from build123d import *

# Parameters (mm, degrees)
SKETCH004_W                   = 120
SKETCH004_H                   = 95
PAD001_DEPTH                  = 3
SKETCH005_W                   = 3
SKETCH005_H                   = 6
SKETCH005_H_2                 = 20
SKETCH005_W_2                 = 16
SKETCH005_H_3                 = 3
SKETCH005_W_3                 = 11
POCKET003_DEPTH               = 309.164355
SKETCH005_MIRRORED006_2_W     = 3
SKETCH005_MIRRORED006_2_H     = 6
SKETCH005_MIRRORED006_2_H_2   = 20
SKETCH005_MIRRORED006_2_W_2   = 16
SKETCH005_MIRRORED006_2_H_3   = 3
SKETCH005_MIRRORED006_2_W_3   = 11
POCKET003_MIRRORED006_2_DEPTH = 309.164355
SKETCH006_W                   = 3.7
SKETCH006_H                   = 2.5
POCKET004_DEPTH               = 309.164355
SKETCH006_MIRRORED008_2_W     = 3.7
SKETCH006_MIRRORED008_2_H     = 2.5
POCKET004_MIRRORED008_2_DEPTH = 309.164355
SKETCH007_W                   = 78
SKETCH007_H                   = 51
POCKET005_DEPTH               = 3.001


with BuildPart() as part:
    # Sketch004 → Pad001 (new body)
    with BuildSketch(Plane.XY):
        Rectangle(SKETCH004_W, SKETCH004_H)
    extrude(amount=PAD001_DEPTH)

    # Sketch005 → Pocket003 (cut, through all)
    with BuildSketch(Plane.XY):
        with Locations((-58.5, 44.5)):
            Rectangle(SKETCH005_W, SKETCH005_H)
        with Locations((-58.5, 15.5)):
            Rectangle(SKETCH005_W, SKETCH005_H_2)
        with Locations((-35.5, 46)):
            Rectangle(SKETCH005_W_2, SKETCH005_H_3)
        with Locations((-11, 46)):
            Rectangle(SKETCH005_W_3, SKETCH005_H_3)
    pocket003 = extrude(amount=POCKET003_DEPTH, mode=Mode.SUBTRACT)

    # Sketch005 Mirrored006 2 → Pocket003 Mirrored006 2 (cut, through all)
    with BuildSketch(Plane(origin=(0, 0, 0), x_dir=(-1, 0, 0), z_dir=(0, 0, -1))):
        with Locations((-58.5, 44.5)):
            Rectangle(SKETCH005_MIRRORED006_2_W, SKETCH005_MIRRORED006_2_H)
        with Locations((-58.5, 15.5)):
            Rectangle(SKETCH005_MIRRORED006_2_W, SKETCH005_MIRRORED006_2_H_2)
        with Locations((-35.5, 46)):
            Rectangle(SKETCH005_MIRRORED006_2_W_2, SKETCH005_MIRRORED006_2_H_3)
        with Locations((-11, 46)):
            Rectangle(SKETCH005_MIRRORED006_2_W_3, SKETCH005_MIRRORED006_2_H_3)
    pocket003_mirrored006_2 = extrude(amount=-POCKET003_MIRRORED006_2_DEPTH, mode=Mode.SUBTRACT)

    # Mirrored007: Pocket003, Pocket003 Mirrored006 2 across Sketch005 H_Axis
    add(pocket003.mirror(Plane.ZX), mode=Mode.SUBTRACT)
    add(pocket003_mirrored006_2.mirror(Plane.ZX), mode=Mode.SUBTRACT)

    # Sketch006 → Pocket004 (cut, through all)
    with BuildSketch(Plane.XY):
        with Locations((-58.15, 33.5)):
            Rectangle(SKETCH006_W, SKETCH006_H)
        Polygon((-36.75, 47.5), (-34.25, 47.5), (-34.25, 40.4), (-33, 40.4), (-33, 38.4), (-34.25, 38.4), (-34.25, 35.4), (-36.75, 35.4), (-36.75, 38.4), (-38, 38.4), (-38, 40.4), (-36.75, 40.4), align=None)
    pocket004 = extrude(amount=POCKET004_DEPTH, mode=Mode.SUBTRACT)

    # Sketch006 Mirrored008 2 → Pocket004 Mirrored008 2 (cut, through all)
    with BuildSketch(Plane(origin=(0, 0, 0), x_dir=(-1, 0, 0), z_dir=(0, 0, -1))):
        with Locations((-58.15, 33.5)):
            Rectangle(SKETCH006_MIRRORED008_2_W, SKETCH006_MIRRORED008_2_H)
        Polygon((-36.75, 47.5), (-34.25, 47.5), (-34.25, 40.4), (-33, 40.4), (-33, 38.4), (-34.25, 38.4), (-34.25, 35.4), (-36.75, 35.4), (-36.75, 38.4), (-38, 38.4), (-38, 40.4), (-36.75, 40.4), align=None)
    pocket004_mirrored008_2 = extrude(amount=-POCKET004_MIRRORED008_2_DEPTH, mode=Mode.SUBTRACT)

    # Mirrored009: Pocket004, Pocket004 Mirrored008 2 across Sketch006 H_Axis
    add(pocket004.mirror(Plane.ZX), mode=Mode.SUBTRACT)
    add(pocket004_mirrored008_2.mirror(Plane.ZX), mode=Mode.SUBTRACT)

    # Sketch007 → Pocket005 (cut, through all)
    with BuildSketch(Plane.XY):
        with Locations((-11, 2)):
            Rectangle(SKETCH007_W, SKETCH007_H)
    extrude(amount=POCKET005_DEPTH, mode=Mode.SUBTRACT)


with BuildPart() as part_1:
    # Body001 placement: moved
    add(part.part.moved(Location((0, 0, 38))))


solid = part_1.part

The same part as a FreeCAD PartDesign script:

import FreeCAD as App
import Part
import Sketcher
Q = App.Units.Quantity

doc = App.newDocument("Part")
params = doc.addObject("Spreadsheet::Sheet", "Params")
for row, (alias, value) in enumerate([
    ("sketch1_width", "120 mm"),
    ("sketch1_height", "95 mm"),
    ("pad1_length", "3 mm"),
    ("sketch2_width", "3 mm"),
    ("sketch2_width2", "16 mm"),
    ("sketch2_width3", "11 mm"),
    ("sketch2_height", "6 mm"),
    ("sketch2_height2", "20 mm"),
    ("sketch3_width", "3 mm"),
    ("sketch3_width2", "16 mm"),
    ("sketch3_width3", "11 mm"),
    ("sketch3_height", "6 mm"),
    ("sketch3_height2", "20 mm"),
    ("sketch4_height", "2 mm"),
    ("sketch4_height2", "3 mm"),
    ("sketch4_width", "3.7 mm"),
    ("sketch4_width2", "2.5 mm"),
    ("sketch4_height3", "7.1 mm"),
    ("sketch5_height", "2 mm"),
    ("sketch5_height2", "3 mm"),
    ("sketch5_width", "3.7 mm"),
    ("sketch5_width2", "2.5 mm"),
    ("sketch5_height3", "7.1 mm"),
    ("sketch6_width", "78 mm"),
    ("sketch6_height", "51 mm"),
], start=1):
    params.set(f"A{row}", alias)
    params.set(f"B{row}", "=" + value)
    params.setAlias(f"B{row}", alias)

body = doc.addObject("PartDesign::Body", "Body")

# Sketch on XY plane
sketch1 = body.newObject("Sketcher::SketchObject", "Sketch")
sketch1.AttachmentSupport = (doc.getObject("XY_Plane"), [""])
sketch1.MapMode = "FlatFace"
sketch1.addGeometry(Part.LineSegment(App.Vector(-60, 47.5, 0), App.Vector(-60, -47.5, 0)), False)
sketch1.addGeometry(Part.LineSegment(App.Vector(-60, -47.5, 0), App.Vector(60, -47.5, 0)), False)
sketch1.addGeometry(Part.LineSegment(App.Vector(60, -47.5, 0), App.Vector(60, 47.5, 0)), False)
sketch1.addGeometry(Part.LineSegment(App.Vector(60, 47.5, 0), App.Vector(-60, 47.5, 0)), False)
sketch1.addConstraint(Sketcher.Constraint("Coincident", 0, 2, 1, 1))
sketch1.addConstraint(Sketcher.Constraint("Coincident", 1, 2, 2, 1))
sketch1.addConstraint(Sketcher.Constraint("Coincident", 2, 2, 3, 1))
sketch1.addConstraint(Sketcher.Constraint("Coincident", 3, 2, 0, 1))
sketch1.addConstraint(Sketcher.Constraint("Vertical", 0))
sketch1.addConstraint(Sketcher.Constraint("Horizontal", 1))
sketch1.addConstraint(Sketcher.Constraint("Vertical", 2))
sketch1.addConstraint(Sketcher.Constraint("Horizontal", 3))
sketch1.addConstraint(Sketcher.Constraint("Symmetric", 0, 2, 2, 2, -1, 1))
sketch1.addConstraint(Sketcher.Constraint("DistanceX", 1, 1, 1, 2, Q("120 mm")))
sketch1.addConstraint(Sketcher.Constraint("DistanceY", 0, 2, 0, 1, Q("95 mm")))
sketch1.setExpression("Constraints[9]", "Params.sketch1_width")
sketch1.setExpression("Constraints[10]", "Params.sketch1_height")
pad1 = body.newObject("PartDesign::Pad", "Pad")
pad1.Profile = sketch1
pad1.setExpression("Length", "Params.pad1_length")

# Sketch on XY plane
sketch2 = body.newObject("Sketcher::SketchObject", "Sketch001")
sketch2.AttachmentSupport = (doc.getObject("XY_Plane"), [""])
sketch2.MapMode = "FlatFace"
sketch2.addGeometry(Part.LineSegment(App.Vector(-60, 47.5, 0), App.Vector(-60, 41.5, 0)), False)
sketch2.addGeometry(Part.LineSegment(App.Vector(-60, 41.5, 0), App.Vector(-57, 41.5, 0)), False)
sketch2.addGeometry(Part.LineSegment(App.Vector(-57, 41.5, 0), App.Vector(-57, 47.5, 0)), False)
sketch2.addGeometry(Part.LineSegment(App.Vector(-57, 47.5, 0), App.Vector(-60, 47.5, 0)), False)
sketch2.addGeometry(Part.LineSegment(App.Vector(-60, 25.5, 0), App.Vector(-60, 5.5, 0)), False)
sketch2.addGeometry(Part.LineSegment(App.Vector(-60, 5.5, 0), App.Vector(-57, 5.5, 0)), False)
sketch2.addGeometry(Part.LineSegment(App.Vector(-57, 5.5, 0), App.Vector(-57, 25.5, 0)), False)
sketch2.addGeometry(Part.LineSegment(App.Vector(-57, 25.5, 0), App.Vector(-60, 25.5, 0)), False)
sketch2.addGeometry(Part.LineSegment(App.Vector(-43.5, 47.5, 0), App.Vector(-43.5, 44.5, 0)), False)
sketch2.addGeometry(Part.LineSegment(App.Vector(-43.5, 44.5, 0), App.Vector(-27.5, 44.5, 0)), False)
sketch2.addGeometry(Part.LineSegment(App.Vector(-27.5, 44.5, 0), App.Vector(-27.5, 47.5, 0)), False)
sketch2.addGeometry(Part.LineSegment(App.Vector(-27.5, 47.5, 0), App.Vector(-43.5, 47.5, 0)), False)
sketch2.addGeometry(Part.LineSegment(App.Vector(-16.5, 47.5, 0), App.Vector(-16.5, 44.5, 0)), False)
sketch2.addGeometry(Part.LineSegment(App.Vector(-16.5, 44.5, 0), App.Vector(-5.5, 44.5, 0)), False)
sketch2.addGeometry(Part.LineSegment(App.Vector(-5.5, 44.5, 0), App.Vector(-5.5, 47.5, 0)), False)
sketch2.addGeometry(Part.LineSegment(App.Vector(-5.5, 47.5, 0), App.Vector(-16.5, 47.5, 0)), False)
sketch2.addConstraint(Sketcher.Constraint("Coincident", 0, 2, 1, 1))
sketch2.addConstraint(Sketcher.Constraint("Coincident", 1, 2, 2, 1))
sketch2.addConstraint(Sketcher.Constraint("Coincident", 2, 2, 3, 1))
sketch2.addConstraint(Sketcher.Constraint("Coincident", 3, 2, 0, 1))
sketch2.addConstraint(Sketcher.Constraint("Coincident", 4, 2, 5, 1))
sketch2.addConstraint(Sketcher.Constraint("Coincident", 5, 2, 6, 1))
sketch2.addConstraint(Sketcher.Constraint("Coincident", 6, 2, 7, 1))
sketch2.addConstraint(Sketcher.Constraint("Coincident", 7, 2, 4, 1))
sketch2.addConstraint(Sketcher.Constraint("Coincident", 8, 2, 9, 1))
sketch2.addConstraint(Sketcher.Constraint("Coincident", 9, 2, 10, 1))
sketch2.addConstraint(Sketcher.Constraint("Coincident", 10, 2, 11, 1))
sketch2.addConstraint(Sketcher.Constraint("Coincident", 11, 2, 8, 1))
sketch2.addConstraint(Sketcher.Constraint("Coincident", 12, 2, 13, 1))
sketch2.addConstraint(Sketcher.Constraint("Coincident", 13, 2, 14, 1))
sketch2.addConstraint(Sketcher.Constraint("Coincident", 14, 2, 15, 1))
sketch2.addConstraint(Sketcher.Constraint("Coincident", 15, 2, 12, 1))
sketch2.addConstraint(Sketcher.Constraint("Vertical", 0))
sketch2.addConstraint(Sketcher.Constraint("Horizontal", 1))
sketch2.addConstraint(Sketcher.Constraint("Vertical", 2))
sketch2.addConstraint(Sketcher.Constraint("Horizontal", 3))
sketch2.addConstraint(Sketcher.Constraint("Vertical", 4))
sketch2.addConstraint(Sketcher.Constraint("Horizontal", 5))
sketch2.addConstraint(Sketcher.Constraint("Vertical", 6))
sketch2.addConstraint(Sketcher.Constraint("Horizontal", 7))
sketch2.addConstraint(Sketcher.Constraint("Vertical", 8))
sketch2.addConstraint(Sketcher.Constraint("Horizontal", 9))
sketch2.addConstraint(Sketcher.Constraint("Vertical", 10))
sketch2.addConstraint(Sketcher.Constraint("Horizontal", 11))
sketch2.addConstraint(Sketcher.Constraint("Vertical", 12))
sketch2.addConstraint(Sketcher.Constraint("Horizontal", 13))
sketch2.addConstraint(Sketcher.Constraint("Vertical", 14))
sketch2.addConstraint(Sketcher.Constraint("Horizontal", 15))
sketch2.addConstraint(Sketcher.Constraint("Horizontal", 3, 2, 10, 2))
sketch2.addConstraint(Sketcher.Constraint("Horizontal", 9, 2, 12, 2))
sketch2.addConstraint(Sketcher.Constraint("Horizontal", 11, 2, 14, 2))
sketch2.addConstraint(Sketcher.Constraint("Vertical", 3, 2, 4, 2))
sketch2.addConstraint(Sketcher.Constraint("Vertical", 2, 2, 5, 2))
sketch2.addConstraint(Sketcher.Constraint("Equal", 7, 8))
sketch2.addConstraint(Sketcher.Constraint("DistanceX", 1, 1, 1, 2, Q("3 mm")))
sketch2.addConstraint(Sketcher.Constraint("DistanceX", 9, 1, 9, 2, Q("16 mm")))
sketch2.addConstraint(Sketcher.Constraint("DistanceX", 13, 1, 13, 2, Q("11 mm")))
sketch2.addConstraint(Sketcher.Constraint("DistanceY", 0, 2, 0, 1, Q("6 mm")))
sketch2.addConstraint(Sketcher.Constraint("DistanceY", 4, 2, 4, 1, Q("20 mm")))
sketch2.addConstraint(Sketcher.Constraint("DistanceX", 0, 2, -1, 1, Q("60 mm")))
sketch2.addConstraint(Sketcher.Constraint("DistanceY", 4, 2, 0, 2, Q("36 mm")))
sketch2.addConstraint(Sketcher.Constraint("DistanceX", 9, 2, 12, 2, Q("11 mm")))
sketch2.addConstraint(Sketcher.Constraint("DistanceY", -1, 1, 0, 2, Q("41.5 mm")))
sketch2.addConstraint(Sketcher.Constraint("DistanceX", 8, 2, -1, 1, Q("43.5 mm")))
sketch2.setExpression("Constraints[38]", "Params.sketch2_width")
sketch2.setExpression("Constraints[39]", "Params.sketch2_width2")
sketch2.setExpression("Constraints[40]", "Params.sketch2_width3")
sketch2.setExpression("Constraints[41]", "Params.sketch2_height")
sketch2.setExpression("Constraints[42]", "Params.sketch2_height2")
pocket1 = body.newObject("PartDesign::Pocket", "Pocket")
pocket1.Profile = sketch2
pocket1.Type = "ThroughAll"
pocket1.Reversed = True

# Sketch on XY plane
sketch3 = body.newObject("Sketcher::SketchObject", "Sketch002")
sketch3.AttachmentSupport = (doc.getObject("XY_Plane"), [""])
sketch3.MapMode = "FlatFace"
sketch3.addGeometry(Part.LineSegment(App.Vector(60, 47.5, 0), App.Vector(60, 41.5, 0)), False)
sketch3.addGeometry(Part.LineSegment(App.Vector(60, 41.5, 0), App.Vector(57, 41.5, 0)), False)
sketch3.addGeometry(Part.LineSegment(App.Vector(57, 41.5, 0), App.Vector(57, 47.5, 0)), False)
sketch3.addGeometry(Part.LineSegment(App.Vector(57, 47.5, 0), App.Vector(60, 47.5, 0)), False)
sketch3.addGeometry(Part.LineSegment(App.Vector(60, 25.5, 0), App.Vector(60, 5.5, 0)), False)
sketch3.addGeometry(Part.LineSegment(App.Vector(60, 5.5, 0), App.Vector(57, 5.5, 0)), False)
sketch3.addGeometry(Part.LineSegment(App.Vector(57, 5.5, 0), App.Vector(57, 25.5, 0)), False)
sketch3.addGeometry(Part.LineSegment(App.Vector(57, 25.5, 0), App.Vector(60, 25.5, 0)), False)
sketch3.addGeometry(Part.LineSegment(App.Vector(43.5, 47.5, 0), App.Vector(43.5, 44.5, 0)), False)
sketch3.addGeometry(Part.LineSegment(App.Vector(43.5, 44.5, 0), App.Vector(27.5, 44.5, 0)), False)
sketch3.addGeometry(Part.LineSegment(App.Vector(27.5, 44.5, 0), App.Vector(27.5, 47.5, 0)), False)
sketch3.addGeometry(Part.LineSegment(App.Vector(27.5, 47.5, 0), App.Vector(43.5, 47.5, 0)), False)
sketch3.addGeometry(Part.LineSegment(App.Vector(16.5, 47.5, 0), App.Vector(16.5, 44.5, 0)), False)
sketch3.addGeometry(Part.LineSegment(App.Vector(16.5, 44.5, 0), App.Vector(5.5, 44.5, 0)), False)
sketch3.addGeometry(Part.LineSegment(App.Vector(5.5, 44.5, 0), App.Vector(5.5, 47.5, 0)), False)
sketch3.addGeometry(Part.LineSegment(App.Vector(5.5, 47.5, 0), App.Vector(16.5, 47.5, 0)), False)
sketch3.addConstraint(Sketcher.Constraint("Coincident", 0, 2, 1, 1))
sketch3.addConstraint(Sketcher.Constraint("Coincident", 1, 2, 2, 1))
sketch3.addConstraint(Sketcher.Constraint("Coincident", 2, 2, 3, 1))
sketch3.addConstraint(Sketcher.Constraint("Coincident", 3, 2, 0, 1))
sketch3.addConstraint(Sketcher.Constraint("Coincident", 4, 2, 5, 1))
sketch3.addConstraint(Sketcher.Constraint("Coincident", 5, 2, 6, 1))
sketch3.addConstraint(Sketcher.Constraint("Coincident", 6, 2, 7, 1))
sketch3.addConstraint(Sketcher.Constraint("Coincident", 7, 2, 4, 1))
sketch3.addConstraint(Sketcher.Constraint("Coincident", 8, 2, 9, 1))
sketch3.addConstraint(Sketcher.Constraint("Coincident", 9, 2, 10, 1))
sketch3.addConstraint(Sketcher.Constraint("Coincident", 10, 2, 11, 1))
sketch3.addConstraint(Sketcher.Constraint("Coincident", 11, 2, 8, 1))
sketch3.addConstraint(Sketcher.Constraint("Coincident", 12, 2, 13, 1))
sketch3.addConstraint(Sketcher.Constraint("Coincident", 13, 2, 14, 1))
sketch3.addConstraint(Sketcher.Constraint("Coincident", 14, 2, 15, 1))
sketch3.addConstraint(Sketcher.Constraint("Coincident", 15, 2, 12, 1))
sketch3.addConstraint(Sketcher.Constraint("Vertical", 0))
sketch3.addConstraint(Sketcher.Constraint("Horizontal", 1))
sketch3.addConstraint(Sketcher.Constraint("Vertical", 2))
sketch3.addConstraint(Sketcher.Constraint("Horizontal", 3))
sketch3.addConstraint(Sketcher.Constraint("Vertical", 4))
sketch3.addConstraint(Sketcher.Constraint("Horizontal", 5))
sketch3.addConstraint(Sketcher.Constraint("Vertical", 6))
sketch3.addConstraint(Sketcher.Constraint("Horizontal", 7))
sketch3.addConstraint(Sketcher.Constraint("Vertical", 8))
sketch3.addConstraint(Sketcher.Constraint("Horizontal", 9))
sketch3.addConstraint(Sketcher.Constraint("Vertical", 10))
sketch3.addConstraint(Sketcher.Constraint("Horizontal", 11))
sketch3.addConstraint(Sketcher.Constraint("Vertical", 12))
sketch3.addConstraint(Sketcher.Constraint("Horizontal", 13))
sketch3.addConstraint(Sketcher.Constraint("Vertical", 14))
sketch3.addConstraint(Sketcher.Constraint("Horizontal", 15))
sketch3.addConstraint(Sketcher.Constraint("Horizontal", 3, 2, 10, 2))
sketch3.addConstraint(Sketcher.Constraint("Horizontal", 9, 2, 12, 2))
sketch3.addConstraint(Sketcher.Constraint("Horizontal", 11, 2, 14, 2))
sketch3.addConstraint(Sketcher.Constraint("Vertical", 3, 2, 4, 2))
sketch3.addConstraint(Sketcher.Constraint("Vertical", 2, 2, 5, 2))
sketch3.addConstraint(Sketcher.Constraint("Equal", 7, 8))
sketch3.addConstraint(Sketcher.Constraint("DistanceX", 1, 2, 1, 1, Q("3 mm")))
sketch3.addConstraint(Sketcher.Constraint("DistanceX", 9, 2, 9, 1, Q("16 mm")))
sketch3.addConstraint(Sketcher.Constraint("DistanceX", 13, 2, 13, 1, Q("11 mm")))
sketch3.addConstraint(Sketcher.Constraint("DistanceY", 0, 2, 0, 1, Q("6 mm")))
sketch3.addConstraint(Sketcher.Constraint("DistanceY", 4, 2, 4, 1, Q("20 mm")))
sketch3.addConstraint(Sketcher.Constraint("DistanceX", -1, 1, 0, 2, Q("60 mm")))
sketch3.addConstraint(Sketcher.Constraint("DistanceY", 4, 2, 0, 2, Q("36 mm")))
sketch3.addConstraint(Sketcher.Constraint("DistanceX", 12, 2, 9, 2, Q("11 mm")))
sketch3.addConstraint(Sketcher.Constraint("DistanceY", -1, 1, 0, 2, Q("41.5 mm")))
sketch3.addConstraint(Sketcher.Constraint("DistanceX", -1, 1, 8, 2, Q("43.5 mm")))
sketch3.setExpression("Constraints[38]", "Params.sketch3_width")
sketch3.setExpression("Constraints[39]", "Params.sketch3_width2")
sketch3.setExpression("Constraints[40]", "Params.sketch3_width3")
sketch3.setExpression("Constraints[41]", "Params.sketch3_height")
sketch3.setExpression("Constraints[42]", "Params.sketch3_height2")
pocket2 = body.newObject("PartDesign::Pocket", "Pocket001")
pocket2.Profile = sketch3
pocket2.Type = "ThroughAll"
pocket2.Reversed = True
doc.recompute()

mirrored = body.newObject("PartDesign::Mirrored", "Mirrored")
mirrored.Originals = [pocket1, pocket2]
mirrored.MirrorPlane = (doc.getObject("XZ_Plane"), [""])
body.Tip = mirrored

# Sketch on XY plane
sketch4 = body.newObject("Sketcher::SketchObject", "Sketch003")
sketch4.AttachmentSupport = (doc.getObject("XY_Plane"), [""])
sketch4.MapMode = "FlatFace"
sketch4.addGeometry(Part.LineSegment(App.Vector(-60, 34.75, 0), App.Vector(-60, 32.25, 0)), False)
sketch4.addGeometry(Part.LineSegment(App.Vector(-60, 32.25, 0), App.Vector(-56.3, 32.25, 0)), False)
sketch4.addGeometry(Part.LineSegment(App.Vector(-56.3, 32.25, 0), App.Vector(-56.3, 34.75, 0)), False)
sketch4.addGeometry(Part.LineSegment(App.Vector(-56.3, 34.75, 0), App.Vector(-60, 34.75, 0)), False)
sketch4.addGeometry(Part.LineSegment(App.Vector(-34.25, 47.5, 0), App.Vector(-36.75, 47.5, 0)), False)
sketch4.addGeometry(Part.LineSegment(App.Vector(-36.75, 47.5, 0), App.Vector(-36.75, 40.4, 0)), False)
sketch4.addGeometry(Part.LineSegment(App.Vector(-36.75, 40.4, 0), App.Vector(-38, 40.4, 0)), False)
sketch4.addGeometry(Part.LineSegment(App.Vector(-38, 40.4, 0), App.Vector(-38, 38.4, 0)), False)
sketch4.addGeometry(Part.LineSegment(App.Vector(-38, 38.4, 0), App.Vector(-36.75, 38.4, 0)), False)
sketch4.addGeometry(Part.LineSegment(App.Vector(-36.75, 38.4, 0), App.Vector(-36.75, 35.4, 0)), False)
sketch4.addGeometry(Part.LineSegment(App.Vector(-36.75, 35.4, 0), App.Vector(-34.25, 35.4, 0)), False)
sketch4.addGeometry(Part.LineSegment(App.Vector(-34.25, 35.4, 0), App.Vector(-34.25, 38.4, 0)), False)
sketch4.addGeometry(Part.LineSegment(App.Vector(-34.25, 38.4, 0), App.Vector(-33, 38.4, 0)), False)
sketch4.addGeometry(Part.LineSegment(App.Vector(-33, 38.4, 0), App.Vector(-33, 40.4, 0)), False)
sketch4.addGeometry(Part.LineSegment(App.Vector(-33, 40.4, 0), App.Vector(-34.25, 40.4, 0)), False)
sketch4.addGeometry(Part.LineSegment(App.Vector(-34.25, 40.4, 0), App.Vector(-34.25, 47.5, 0)), False)
sketch4.addConstraint(Sketcher.Constraint("Coincident", 0, 2, 1, 1))
sketch4.addConstraint(Sketcher.Constraint("Coincident", 1, 2, 2, 1))
sketch4.addConstraint(Sketcher.Constraint("Coincident", 2, 2, 3, 1))
sketch4.addConstraint(Sketcher.Constraint("Coincident", 3, 2, 0, 1))
sketch4.addConstraint(Sketcher.Constraint("Coincident", 4, 2, 5, 1))
sketch4.addConstraint(Sketcher.Constraint("Coincident", 5, 2, 6, 1))
sketch4.addConstraint(Sketcher.Constraint("Coincident", 6, 2, 7, 1))
sketch4.addConstraint(Sketcher.Constraint("Coincident", 7, 2, 8, 1))
sketch4.addConstraint(Sketcher.Constraint("Coincident", 8, 2, 9, 1))
sketch4.addConstraint(Sketcher.Constraint("Coincident", 9, 2, 10, 1))
sketch4.addConstraint(Sketcher.Constraint("Coincident", 10, 2, 11, 1))
sketch4.addConstraint(Sketcher.Constraint("Coincident", 11, 2, 12, 1))
sketch4.addConstraint(Sketcher.Constraint("Coincident", 12, 2, 13, 1))
sketch4.addConstraint(Sketcher.Constraint("Coincident", 13, 2, 14, 1))
sketch4.addConstraint(Sketcher.Constraint("Coincident", 14, 2, 15, 1))
sketch4.addConstraint(Sketcher.Constraint("Coincident", 15, 2, 4, 1))
sketch4.addConstraint(Sketcher.Constraint("Vertical", 0))
sketch4.addConstraint(Sketcher.Constraint("Horizontal", 1))
sketch4.addConstraint(Sketcher.Constraint("Vertical", 2))
sketch4.addConstraint(Sketcher.Constraint("Horizontal", 3))
sketch4.addConstraint(Sketcher.Constraint("Horizontal", 4))
sketch4.addConstraint(Sketcher.Constraint("Vertical", 5))
sketch4.addConstraint(Sketcher.Constraint("Horizontal", 6))
sketch4.addConstraint(Sketcher.Constraint("Vertical", 7))
sketch4.addConstraint(Sketcher.Constraint("Horizontal", 8))
sketch4.addConstraint(Sketcher.Constraint("Vertical", 9))
sketch4.addConstraint(Sketcher.Constraint("Horizontal", 10))
sketch4.addConstraint(Sketcher.Constraint("Vertical", 11))
sketch4.addConstraint(Sketcher.Constraint("Horizontal", 12))
sketch4.addConstraint(Sketcher.Constraint("Vertical", 13))
sketch4.addConstraint(Sketcher.Constraint("Horizontal", 14))
sketch4.addConstraint(Sketcher.Constraint("Vertical", 15))
sketch4.addConstraint(Sketcher.Constraint("Horizontal", 8, 2, 11, 2))
sketch4.addConstraint(Sketcher.Constraint("Horizontal", 6, 2, 13, 2))
sketch4.addConstraint(Sketcher.Constraint("Vertical", 5, 2, 8, 2))
sketch4.addConstraint(Sketcher.Constraint("Vertical", 11, 2, 14, 2))
sketch4.addConstraint(Sketcher.Constraint("Equal", 8, 12))
sketch4.addConstraint(Sketcher.Constraint("Equal", 10, 0))
sketch4.addConstraint(Sketcher.Constraint("DistanceY", 7, 2, 7, 1, Q("2 mm")))
sketch4.addConstraint(Sketcher.Constraint("DistanceY", 9, 2, 9, 1, Q("3 mm")))
sketch4.addConstraint(Sketcher.Constraint("DistanceX", 1, 1, 1, 2, Q("3.7 mm")))
sketch4.addConstraint(Sketcher.Constraint("DistanceX", 4, 2, 4, 1, Q("2.5 mm")))
sketch4.addConstraint(Sketcher.Constraint("DistanceY", 5, 2, 5, 1, Q("7.1 mm")))
sketch4.addConstraint(Sketcher.Constraint("DistanceX", 0, 2, -1, 1, Q("60 mm")))
sketch4.addConstraint(Sketcher.Constraint("DistanceX", 6, 2, -1, 1, Q("38 mm")))
sketch4.addConstraint(Sketcher.Constraint("DistanceX", 12, 2, -1, 1, Q("33 mm")))
sketch4.addConstraint(Sketcher.Constraint("DistanceY", -1, 1, 4, 2, Q("47.5 mm")))
sketch4.addConstraint(Sketcher.Constraint("DistanceY", -1, 1, 0, 2, Q("32.25 mm")))
sketch4.setExpression("Constraints[38]", "Params.sketch4_height")
sketch4.setExpression("Constraints[39]", "Params.sketch4_height2")
sketch4.setExpression("Constraints[40]", "Params.sketch4_width")
sketch4.setExpression("Constraints[41]", "Params.sketch4_width2")
sketch4.setExpression("Constraints[42]", "Params.sketch4_height3")
pocket3 = body.newObject("PartDesign::Pocket", "Pocket002")
pocket3.Profile = sketch4
pocket3.Type = "ThroughAll"
pocket3.Reversed = True

# Sketch on XY plane
sketch5 = body.newObject("Sketcher::SketchObject", "Sketch004")
sketch5.AttachmentSupport = (doc.getObject("XY_Plane"), [""])
sketch5.MapMode = "FlatFace"
sketch5.addGeometry(Part.LineSegment(App.Vector(60, 34.75, 0), App.Vector(60, 32.25, 0)), False)
sketch5.addGeometry(Part.LineSegment(App.Vector(60, 32.25, 0), App.Vector(56.3, 32.25, 0)), False)
sketch5.addGeometry(Part.LineSegment(App.Vector(56.3, 32.25, 0), App.Vector(56.3, 34.75, 0)), False)
sketch5.addGeometry(Part.LineSegment(App.Vector(56.3, 34.75, 0), App.Vector(60, 34.75, 0)), False)
sketch5.addGeometry(Part.LineSegment(App.Vector(34.25, 47.5, 0), App.Vector(36.75, 47.5, 0)), False)
sketch5.addGeometry(Part.LineSegment(App.Vector(36.75, 47.5, 0), App.Vector(36.75, 40.4, 0)), False)
sketch5.addGeometry(Part.LineSegment(App.Vector(36.75, 40.4, 0), App.Vector(38, 40.4, 0)), False)
sketch5.addGeometry(Part.LineSegment(App.Vector(38, 40.4, 0), App.Vector(38, 38.4, 0)), False)
sketch5.addGeometry(Part.LineSegment(App.Vector(38, 38.4, 0), App.Vector(36.75, 38.4, 0)), False)
sketch5.addGeometry(Part.LineSegment(App.Vector(36.75, 38.4, 0), App.Vector(36.75, 35.4, 0)), False)
sketch5.addGeometry(Part.LineSegment(App.Vector(36.75, 35.4, 0), App.Vector(34.25, 35.4, 0)), False)
sketch5.addGeometry(Part.LineSegment(App.Vector(34.25, 35.4, 0), App.Vector(34.25, 38.4, 0)), False)
sketch5.addGeometry(Part.LineSegment(App.Vector(34.25, 38.4, 0), App.Vector(33, 38.4, 0)), False)
sketch5.addGeometry(Part.LineSegment(App.Vector(33, 38.4, 0), App.Vector(33, 40.4, 0)), False)
sketch5.addGeometry(Part.LineSegment(App.Vector(33, 40.4, 0), App.Vector(34.25, 40.4, 0)), False)
sketch5.addGeometry(Part.LineSegment(App.Vector(34.25, 40.4, 0), App.Vector(34.25, 47.5, 0)), False)
sketch5.addConstraint(Sketcher.Constraint("Coincident", 0, 2, 1, 1))
sketch5.addConstraint(Sketcher.Constraint("Coincident", 1, 2, 2, 1))
sketch5.addConstraint(Sketcher.Constraint("Coincident", 2, 2, 3, 1))
sketch5.addConstraint(Sketcher.Constraint("Coincident", 3, 2, 0, 1))
sketch5.addConstraint(Sketcher.Constraint("Coincident", 4, 2, 5, 1))
sketch5.addConstraint(Sketcher.Constraint("Coincident", 5, 2, 6, 1))
sketch5.addConstraint(Sketcher.Constraint("Coincident", 6, 2, 7, 1))
sketch5.addConstraint(Sketcher.Constraint("Coincident", 7, 2, 8, 1))
sketch5.addConstraint(Sketcher.Constraint("Coincident", 8, 2, 9, 1))
sketch5.addConstraint(Sketcher.Constraint("Coincident", 9, 2, 10, 1))
sketch5.addConstraint(Sketcher.Constraint("Coincident", 10, 2, 11, 1))
sketch5.addConstraint(Sketcher.Constraint("Coincident", 11, 2, 12, 1))
sketch5.addConstraint(Sketcher.Constraint("Coincident", 12, 2, 13, 1))
sketch5.addConstraint(Sketcher.Constraint("Coincident", 13, 2, 14, 1))
sketch5.addConstraint(Sketcher.Constraint("Coincident", 14, 2, 15, 1))
sketch5.addConstraint(Sketcher.Constraint("Coincident", 15, 2, 4, 1))
sketch5.addConstraint(Sketcher.Constraint("Vertical", 0))
sketch5.addConstraint(Sketcher.Constraint("Horizontal", 1))
sketch5.addConstraint(Sketcher.Constraint("Vertical", 2))
sketch5.addConstraint(Sketcher.Constraint("Horizontal", 3))
sketch5.addConstraint(Sketcher.Constraint("Horizontal", 4))
sketch5.addConstraint(Sketcher.Constraint("Vertical", 5))
sketch5.addConstraint(Sketcher.Constraint("Horizontal", 6))
sketch5.addConstraint(Sketcher.Constraint("Vertical", 7))
sketch5.addConstraint(Sketcher.Constraint("Horizontal", 8))
sketch5.addConstraint(Sketcher.Constraint("Vertical", 9))
sketch5.addConstraint(Sketcher.Constraint("Horizontal", 10))
sketch5.addConstraint(Sketcher.Constraint("Vertical", 11))
sketch5.addConstraint(Sketcher.Constraint("Horizontal", 12))
sketch5.addConstraint(Sketcher.Constraint("Vertical", 13))
sketch5.addConstraint(Sketcher.Constraint("Horizontal", 14))
sketch5.addConstraint(Sketcher.Constraint("Vertical", 15))
sketch5.addConstraint(Sketcher.Constraint("Horizontal", 8, 2, 11, 2))
sketch5.addConstraint(Sketcher.Constraint("Horizontal", 6, 2, 13, 2))
sketch5.addConstraint(Sketcher.Constraint("Vertical", 5, 2, 8, 2))
sketch5.addConstraint(Sketcher.Constraint("Vertical", 11, 2, 14, 2))
sketch5.addConstraint(Sketcher.Constraint("Equal", 8, 12))
sketch5.addConstraint(Sketcher.Constraint("Equal", 10, 0))
sketch5.addConstraint(Sketcher.Constraint("DistanceY", 7, 2, 7, 1, Q("2 mm")))
sketch5.addConstraint(Sketcher.Constraint("DistanceY", 9, 2, 9, 1, Q("3 mm")))
sketch5.addConstraint(Sketcher.Constraint("DistanceX", 1, 2, 1, 1, Q("3.7 mm")))
sketch5.addConstraint(Sketcher.Constraint("DistanceX", 4, 1, 4, 2, Q("2.5 mm")))
sketch5.addConstraint(Sketcher.Constraint("DistanceY", 5, 2, 5, 1, Q("7.1 mm")))
sketch5.addConstraint(Sketcher.Constraint("DistanceX", -1, 1, 0, 2, Q("60 mm")))
sketch5.addConstraint(Sketcher.Constraint("DistanceX", -1, 1, 6, 2, Q("38 mm")))
sketch5.addConstraint(Sketcher.Constraint("DistanceX", -1, 1, 12, 2, Q("33 mm")))
sketch5.addConstraint(Sketcher.Constraint("DistanceY", -1, 1, 4, 2, Q("47.5 mm")))
sketch5.addConstraint(Sketcher.Constraint("DistanceY", -1, 1, 0, 2, Q("32.25 mm")))
sketch5.setExpression("Constraints[38]", "Params.sketch5_height")
sketch5.setExpression("Constraints[39]", "Params.sketch5_height2")
sketch5.setExpression("Constraints[40]", "Params.sketch5_width")
sketch5.setExpression("Constraints[41]", "Params.sketch5_width2")
sketch5.setExpression("Constraints[42]", "Params.sketch5_height3")
pocket4 = body.newObject("PartDesign::Pocket", "Pocket003")
pocket4.Profile = sketch5
pocket4.Type = "ThroughAll"
pocket4.Reversed = True
doc.recompute()

mirrored2 = body.newObject("PartDesign::Mirrored", "Mirrored001")
mirrored2.Originals = [pocket3, pocket4]
mirrored2.MirrorPlane = (doc.getObject("XZ_Plane"), [""])
body.Tip = mirrored2

# Sketch on XY plane
sketch6 = body.newObject("Sketcher::SketchObject", "Sketch005")
sketch6.AttachmentSupport = (doc.getObject("XY_Plane"), [""])
sketch6.MapMode = "FlatFace"
sketch6.addGeometry(Part.LineSegment(App.Vector(-50, 27.5, 0), App.Vector(-50, -23.5, 0)), False)
sketch6.addGeometry(Part.LineSegment(App.Vector(-50, -23.5, 0), App.Vector(28, -23.5, 0)), False)
sketch6.addGeometry(Part.LineSegment(App.Vector(28, -23.5, 0), App.Vector(28, 27.5, 0)), False)
sketch6.addGeometry(Part.LineSegment(App.Vector(28, 27.5, 0), App.Vector(-50, 27.5, 0)), False)
sketch6.addConstraint(Sketcher.Constraint("Coincident", 0, 2, 1, 1))
sketch6.addConstraint(Sketcher.Constraint("Coincident", 1, 2, 2, 1))
sketch6.addConstraint(Sketcher.Constraint("Coincident", 2, 2, 3, 1))
sketch6.addConstraint(Sketcher.Constraint("Coincident", 3, 2, 0, 1))
sketch6.addConstraint(Sketcher.Constraint("Vertical", 0))
sketch6.addConstraint(Sketcher.Constraint("Horizontal", 1))
sketch6.addConstraint(Sketcher.Constraint("Vertical", 2))
sketch6.addConstraint(Sketcher.Constraint("Horizontal", 3))
sketch6.addConstraint(Sketcher.Constraint("DistanceX", 1, 1, 1, 2, Q("78 mm")))
sketch6.addConstraint(Sketcher.Constraint("DistanceY", 0, 2, 0, 1, Q("51 mm")))
sketch6.addConstraint(Sketcher.Constraint("DistanceX", 0, 2, -1, 1, Q("50 mm")))
sketch6.addConstraint(Sketcher.Constraint("DistanceY", 0, 2, -1, 1, Q("23.5 mm")))
sketch6.setExpression("Constraints[8]", "Params.sketch6_width")
sketch6.setExpression("Constraints[9]", "Params.sketch6_height")
pocket5 = body.newObject("PartDesign::Pocket", "Pocket004")
pocket5.Profile = sketch6
pocket5.Type = "ThroughAll"
pocket5.Reversed = True
body2 = doc.addObject("PartDesign::Body", "Body001")
doc.recompute()

body.Placement = App.Placement(App.Vector(0, 0, 38), App.Rotation(App.Vector(0, 0, 1), 0))
boolean = body2.newObject("PartDesign::Boolean", "Boolean")
boolean.Type = "Fuse"
boolean.addObjects([body])

doc.recompute()
